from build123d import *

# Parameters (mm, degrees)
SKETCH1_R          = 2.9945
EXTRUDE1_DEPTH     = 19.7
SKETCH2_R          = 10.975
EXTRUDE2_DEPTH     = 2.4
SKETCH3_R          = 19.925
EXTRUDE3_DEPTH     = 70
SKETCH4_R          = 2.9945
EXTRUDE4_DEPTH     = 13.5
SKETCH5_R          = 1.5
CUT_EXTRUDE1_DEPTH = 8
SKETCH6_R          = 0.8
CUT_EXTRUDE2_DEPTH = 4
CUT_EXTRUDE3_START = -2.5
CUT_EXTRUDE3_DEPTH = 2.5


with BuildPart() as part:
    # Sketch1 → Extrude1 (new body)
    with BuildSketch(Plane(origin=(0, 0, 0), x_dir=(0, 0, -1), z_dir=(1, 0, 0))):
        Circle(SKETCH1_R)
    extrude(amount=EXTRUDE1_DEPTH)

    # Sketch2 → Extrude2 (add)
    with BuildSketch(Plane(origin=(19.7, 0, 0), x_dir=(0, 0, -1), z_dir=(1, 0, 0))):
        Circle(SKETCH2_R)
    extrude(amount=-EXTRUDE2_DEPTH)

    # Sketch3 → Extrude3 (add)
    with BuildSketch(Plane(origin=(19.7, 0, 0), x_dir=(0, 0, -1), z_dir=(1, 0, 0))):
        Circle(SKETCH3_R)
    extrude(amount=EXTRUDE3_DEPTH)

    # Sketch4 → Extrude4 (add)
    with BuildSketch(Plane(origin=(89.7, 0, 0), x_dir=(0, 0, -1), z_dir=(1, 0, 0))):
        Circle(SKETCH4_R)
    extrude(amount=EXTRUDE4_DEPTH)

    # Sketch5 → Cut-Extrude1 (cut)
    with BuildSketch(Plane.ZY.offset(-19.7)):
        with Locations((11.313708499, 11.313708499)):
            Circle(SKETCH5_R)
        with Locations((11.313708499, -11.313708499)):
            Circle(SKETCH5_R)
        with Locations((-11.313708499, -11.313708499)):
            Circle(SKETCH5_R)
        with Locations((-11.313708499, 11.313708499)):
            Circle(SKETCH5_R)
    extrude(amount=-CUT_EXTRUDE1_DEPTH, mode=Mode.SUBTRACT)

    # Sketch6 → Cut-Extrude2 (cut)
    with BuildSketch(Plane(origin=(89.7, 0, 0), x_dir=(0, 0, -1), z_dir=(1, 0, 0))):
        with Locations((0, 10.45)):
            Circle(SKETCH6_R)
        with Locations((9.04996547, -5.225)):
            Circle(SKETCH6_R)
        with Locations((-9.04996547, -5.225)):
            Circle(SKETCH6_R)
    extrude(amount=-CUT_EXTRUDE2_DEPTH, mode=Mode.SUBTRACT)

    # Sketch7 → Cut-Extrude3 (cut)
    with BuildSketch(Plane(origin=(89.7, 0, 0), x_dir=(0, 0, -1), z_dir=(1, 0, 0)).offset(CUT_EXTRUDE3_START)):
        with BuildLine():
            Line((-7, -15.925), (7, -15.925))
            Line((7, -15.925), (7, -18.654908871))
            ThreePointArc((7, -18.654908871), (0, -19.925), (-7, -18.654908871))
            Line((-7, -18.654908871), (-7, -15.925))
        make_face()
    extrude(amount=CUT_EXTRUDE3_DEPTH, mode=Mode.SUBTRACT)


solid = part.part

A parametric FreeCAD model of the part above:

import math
import FreeCAD as App
import Part
import Sketcher

V = App.Vector
Q = App.Units.Quantity

doc = App.newDocument("Part")
body = doc.addObject("PartDesign::Body", "Body")

# Sketch on YZ plane
sketch1 = body.newObject("Sketcher::SketchObject", "Sketch")
sketch1.AttachmentSupport = (doc.getObject("YZ_Plane"), [""])
sketch1.MapMode = "FlatFace"
sketch1.addGeometry(Part.Circle(V(0, 0, 0), V(0, 0, 1), 3), False)
sketch1.addConstraint([
    Sketcher.Constraint("Coincident", 0, 3, -1, 1),
    Sketcher.Constraint("Diameter", 0, Q("5.989 mm")),
])
pad1 = body.newObject("PartDesign::Pad", "Pad")
pad1.Profile = sketch1
pad1.Length = 19.7

# Sketch on YZ plane
sketch2 = body.newObject("Sketcher::SketchObject", "Sketch001")
sketch2.AttachmentSupport = (doc.getObject("YZ_Plane"), [""])
sketch2.MapMode = "FlatFace"
sketch2.AttachmentOffset = App.Placement(V(0, 0, 19.7), App.Rotation())
sketch2.addGeometry(Part.Circle(V(0, 0, 0), V(0, 0, 1), 11), False)
sketch2.addConstraint([
    Sketcher.Constraint("Coincident", 0, 3, -1, 1),
    Sketcher.Constraint("Diameter", 0, Q("21.95 mm")),
])
pad2 = body.newObject("PartDesign::Pad", "Pad001")
pad2.Profile = sketch2
pad2.Length = 2.4
pad2.Reversed = True

# Sketch on YZ plane
sketch3 = body.newObject("Sketcher::SketchObject", "Sketch002")
sketch3.AttachmentSupport = (doc.getObject("YZ_Plane"), [""])
sketch3.MapMode = "FlatFace"
sketch3.AttachmentOffset = App.Placement(V(0, 0, 19.7), App.Rotation())
sketch3.addGeometry(Part.Circle(V(0, 0, 0), V(0, 0, 1), 20), False)
sketch3.addConstraint([
    Sketcher.Constraint("Coincident", 0, 3, -1, 1),
    Sketcher.Constraint("Diameter", 0, Q("39.85 mm")),
])
pad3 = body.newObject("PartDesign::Pad", "Pad002")
pad3.Profile = sketch3
pad3.Length = 70

# Sketch on YZ plane
sketch4 = body.newObject("Sketcher::SketchObject", "Sketch003")
sketch4.AttachmentSupport = (doc.getObject("YZ_Plane"), [""])
sketch4.MapMode = "FlatFace"
sketch4.AttachmentOffset = App.Placement(V(0, 0, 89.7), App.Rotation())
sketch4.addGeometry(Part.Circle(V(0, 0, 0), V(0, 0, 1), 3), False)
sketch4.addConstraint([
    Sketcher.Constraint("Coincident", 0, 3, -1, 1),
    Sketcher.Constraint("Diameter", 0, Q("5.989 mm")),
])
pad4 = body.newObject("PartDesign::Pad", "Pad003")
pad4.Profile = sketch4
pad4.Length = 13.5

# Sketch on YZ plane
sketch5 = body.newObject("Sketcher::SketchObject", "Sketch004")
sketch5.AttachmentSupport = (doc.getObject("YZ_Plane"), [""])
sketch5.MapMode = "FlatFace"
sketch5.AttachmentOffset = App.Placement(V(0, 0, 19.7), App.Rotation())
sketch5.addGeometry([
    Part.Circle(V(11.3, 11.3, 0), V(0, 0, 1), 1.5),
    Part.Circle(V(-11.3, 11.3, 0), V(0, 0, 1), 1.5),
    Part.Circle(V(-11.3, -11.3, 0), V(0, 0, 1), 1.5),
    Part.Circle(V(11.3, -11.3, 0), V(0, 0, 1), 1.5),
], False)
sketch5.addConstraint([
    Sketcher.Constraint("Equal", 0, 1),
    Sketcher.Constraint("Equal", 1, 2),
    Sketcher.Constraint("Equal", 2, 3),
    Sketcher.Constraint("Symmetric", 0, 3, 2, 3, -1, 1),
    Sketcher.Constraint("Symmetric", 1, 3, 3, 3, -1, 1),
    Sketcher.Constraint("Symmetric", 0, 3, 1, 3, -2),
    Sketcher.Constraint("Diameter", 0, Q("3 mm")),
    Sketcher.Constraint("DistanceX", -1, 1, 0, 3, Q("11.313708 mm")),
    Sketcher.Constraint("DistanceY", -1, 1, 0, 3, Q("11.313708 mm")),
])
pocket1 = body.newObject("PartDesign::Pocket", "Pocket")
pocket1.Profile = sketch5
pocket1.Length = 8
pocket1.Reversed = True

# Sketch on YZ plane
sketch6 = body.newObject("Sketcher::SketchObject", "Sketch005")
sketch6.AttachmentSupport = (doc.getObject("YZ_Plane"), [""])
sketch6.MapMode = "FlatFace"
sketch6.AttachmentOffset = App.Placement(V(0, 0, 89.7), App.Rotation())
sketch6.addGeometry([
    Part.Circle(V(10.4, 0, 0), V(0, 0, 1), 0.8),
    Part.Circle(V(-5.2, -9, 0), V(0, 0, 1), 0.8),
    Part.Circle(V(-5.2, 9, 0), V(0, 0, 1), 0.8),
], False)
sketch6.addConstraint([
    Sketcher.Constraint("Equal", 0, 1),
    Sketcher.Constraint("Equal", 1, 2),
    Sketcher.Constraint("Symmetric", 1, 3, 2, 3, -1),
    Sketcher.Constraint("PointOnObject", 0, 3, -1),
    Sketcher.Constraint("Diameter", 0, Q("1.6 mm")),
    Sketcher.Constraint("DistanceX", -1, 1, 0, 3, Q("10.45 mm")),
    Sketcher.Constraint("DistanceX", 1, 3, -1, 1, Q("5.225 mm")),
    Sketcher.Constraint("DistanceY", 1, 3, 2, 3, Q("18.099931 mm")),
])
pocket2 = body.newObject("PartDesign::Pocket", "Pocket001")
pocket2.Profile = sketch6
pocket2.Length = 4

# Sketch on YZ plane
sketch7 = body.newObject("Sketcher::SketchObject", "Sketch006")
sketch7.AttachmentSupport = (doc.getObject("YZ_Plane"), [""])
sketch7.MapMode = "FlatFace"
sketch7.AttachmentOffset = App.Placement(V(0, 0, 87.2), App.Rotation())
sketch7.addGeometry([
    Part.LineSegment(V(-15.9, -7, 0), V(-15.9, 7, 0)),
    Part.LineSegment(V(-15.9, 7, 0), V(-18.7, 7, 0)),
    Part.ArcOfCircle(Part.Circle(V(0, 0, 0), V(0, 0, 1), 19.9), math.radians(159), math.radians(201)),
    Part.LineSegment(V(-18.7, -7, 0), V(-15.9, -7, 0)),
], False)
sketch7.addConstraint([
    Sketcher.Constraint("Coincident", 0, 2, 1, 1),
    Sketcher.Constraint("Coincident", 1, 2, 2, 1),
    Sketcher.Constraint("Coincident", 2, 2, 3, 1),
    Sketcher.Constraint("Coincident", 3, 2, 0, 1),
    Sketcher.Constraint("Vertical", 0),
    Sketcher.Constraint("Horizontal", 1),
    Sketcher.Constraint("Horizontal", 3),
    Sketcher.Constraint("Coincident", 2, 3, -1, 1),
    Sketcher.Constraint("Vertical", 1, 2, 2, 2),
    Sketcher.Constraint("DistanceY", 0, 1, 0, 2, Q("14 mm")),
    Sketcher.Constraint("Radius", 2, Q("19.925 mm")),
    Sketcher.Constraint("DistanceX", 0, 2, -1, 1, Q("15.925 mm")),
])
pocket3 = body.newObject("PartDesign::Pocket", "Pocket002")
pocket3.Profile = sketch7
pocket3.Length = 2.5
pocket3.Reversed = True

doc.recompute()
